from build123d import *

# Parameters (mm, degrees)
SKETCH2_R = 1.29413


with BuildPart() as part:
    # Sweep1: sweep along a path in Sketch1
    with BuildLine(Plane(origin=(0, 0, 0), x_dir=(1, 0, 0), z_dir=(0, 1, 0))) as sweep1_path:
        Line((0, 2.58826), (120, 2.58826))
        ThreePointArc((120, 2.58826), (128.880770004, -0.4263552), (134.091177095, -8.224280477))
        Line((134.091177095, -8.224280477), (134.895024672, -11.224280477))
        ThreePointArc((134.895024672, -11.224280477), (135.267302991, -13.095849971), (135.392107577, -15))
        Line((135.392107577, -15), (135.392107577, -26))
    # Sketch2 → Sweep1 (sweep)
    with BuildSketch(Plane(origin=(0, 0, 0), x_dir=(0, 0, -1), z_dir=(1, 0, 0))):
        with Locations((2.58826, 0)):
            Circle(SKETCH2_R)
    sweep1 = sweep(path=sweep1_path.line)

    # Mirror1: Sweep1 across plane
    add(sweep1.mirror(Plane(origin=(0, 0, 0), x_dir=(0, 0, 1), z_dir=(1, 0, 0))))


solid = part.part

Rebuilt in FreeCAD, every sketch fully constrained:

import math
import FreeCAD as App
import Part
import Sketcher

V = App.Vector
Q = App.Units.Quantity

doc = App.newDocument("Part")
body = doc.addObject("PartDesign::Body", "Body")

# Sketch on YZ plane
sketch1 = body.newObject("Sketcher::SketchObject", "Sketch")
sketch1.AttachmentSupport = (doc.getObject("YZ_Plane"), [""])
sketch1.MapMode = "FlatFace"
sketch1.addGeometry(Part.Circle(V(0, -2.58826, 0), V(0, 0, 1), 1.29413), False)
sketch1.addConstraint(Sketcher.Constraint("PointOnObject", 0, 3, -2))
sketch1.addConstraint(Sketcher.Constraint("Diameter", 0, 2.58826))
sketch1.addConstraint(Sketcher.Constraint("DistanceY", 0, 3, -1, 1, 2.58826))

# Sketch on XZ plane
sketch2 = body.newObject("Sketcher::SketchObject", "Sketch001")
sketch2.AttachmentSupport = (doc.getObject("XZ_Plane"), [""])
sketch2.MapMode = "FlatFace"
sketch2.addGeometry(Part.LineSegment(V(0, -2.58826, 0), V(120, -2.58826, 0)), False)
sketch2.addGeometry(Part.ArcOfCircle(Part.Circle(V(120, 12, 0), V(0, 0, 1), 14.58826), math.radians(-90), math.radians(-15)), False)
sketch2.addGeometry(Part.LineSegment(V(134.091177, 8.22428, 0), V(134.895025, 11.22428, 0)), False)
sketch2.addGeometry(Part.ArcOfCircle(Part.Circle(V(120.803848, 15, 0), V(0, 0, 1), 14.58826), math.radians(-15), math.radians(0)), False)
sketch2.addGeometry(Part.LineSegment(V(135.392108, 15, 0), V(135.392108, 26, 0)), False)
sketch2.addConstraint(Sketcher.Constraint("Tangent", 0, 2, 1, 1))
sketch2.addConstraint(Sketcher.Constraint("Tangent", 1, 2, 2, 1))
sketch2.addConstraint(Sketcher.Constraint("Tangent", 2, 2, 3, 1))
sketch2.addConstraint(Sketcher.Constraint("Tangent", 3, 2, 4, 1))
sketch2.addConstraint(Sketcher.Constraint("Horizontal", 0))
sketch2.addConstraint(Sketcher.Constraint("Vertical", 4))
sketch2.addConstraint(Sketcher.Constraint("Equal", 1, 3))
sketch2.addConstraint(Sketcher.Constraint("PointOnObject", 0, 1, -2))
sketch2.addConstraint(Sketcher.Constraint("DistanceX", 0, 1, 0, 2, 120.0))
sketch2.addConstraint(Sketcher.Constraint("DistanceY", 4, 1, 4, 2, 11.0))
sketch2.addConstraint(Sketcher.Constraint("Angle", 2, Q("75 deg")))
sketch2.addConstraint(Sketcher.Constraint("DistanceY", -1, 1, 1, 3, 12.0))
sketch2.addConstraint(Sketcher.Constraint("DistanceY", -1, 1, 3, 3, 15.0))
sketch2.addConstraint(Sketcher.Constraint("Radius", 1, 14.58826))
doc.recompute()

additivepipe = body.newObject("PartDesign::AdditivePipe", "AdditivePipe")
additivepipe.Profile = sketch1
additivepipe.Spine = (sketch2, ["Edge1", "Edge2", "Edge3", "Edge4", "Edge5"])
doc.recompute()

mirrored = body.newObject("PartDesign::Mirrored", "Mirrored")
mirrored.Originals = [additivepipe]
mirrored.MirrorPlane = (doc.getObject("YZ_Plane"), [""])
body.Tip = mirrored

doc.recompute()
